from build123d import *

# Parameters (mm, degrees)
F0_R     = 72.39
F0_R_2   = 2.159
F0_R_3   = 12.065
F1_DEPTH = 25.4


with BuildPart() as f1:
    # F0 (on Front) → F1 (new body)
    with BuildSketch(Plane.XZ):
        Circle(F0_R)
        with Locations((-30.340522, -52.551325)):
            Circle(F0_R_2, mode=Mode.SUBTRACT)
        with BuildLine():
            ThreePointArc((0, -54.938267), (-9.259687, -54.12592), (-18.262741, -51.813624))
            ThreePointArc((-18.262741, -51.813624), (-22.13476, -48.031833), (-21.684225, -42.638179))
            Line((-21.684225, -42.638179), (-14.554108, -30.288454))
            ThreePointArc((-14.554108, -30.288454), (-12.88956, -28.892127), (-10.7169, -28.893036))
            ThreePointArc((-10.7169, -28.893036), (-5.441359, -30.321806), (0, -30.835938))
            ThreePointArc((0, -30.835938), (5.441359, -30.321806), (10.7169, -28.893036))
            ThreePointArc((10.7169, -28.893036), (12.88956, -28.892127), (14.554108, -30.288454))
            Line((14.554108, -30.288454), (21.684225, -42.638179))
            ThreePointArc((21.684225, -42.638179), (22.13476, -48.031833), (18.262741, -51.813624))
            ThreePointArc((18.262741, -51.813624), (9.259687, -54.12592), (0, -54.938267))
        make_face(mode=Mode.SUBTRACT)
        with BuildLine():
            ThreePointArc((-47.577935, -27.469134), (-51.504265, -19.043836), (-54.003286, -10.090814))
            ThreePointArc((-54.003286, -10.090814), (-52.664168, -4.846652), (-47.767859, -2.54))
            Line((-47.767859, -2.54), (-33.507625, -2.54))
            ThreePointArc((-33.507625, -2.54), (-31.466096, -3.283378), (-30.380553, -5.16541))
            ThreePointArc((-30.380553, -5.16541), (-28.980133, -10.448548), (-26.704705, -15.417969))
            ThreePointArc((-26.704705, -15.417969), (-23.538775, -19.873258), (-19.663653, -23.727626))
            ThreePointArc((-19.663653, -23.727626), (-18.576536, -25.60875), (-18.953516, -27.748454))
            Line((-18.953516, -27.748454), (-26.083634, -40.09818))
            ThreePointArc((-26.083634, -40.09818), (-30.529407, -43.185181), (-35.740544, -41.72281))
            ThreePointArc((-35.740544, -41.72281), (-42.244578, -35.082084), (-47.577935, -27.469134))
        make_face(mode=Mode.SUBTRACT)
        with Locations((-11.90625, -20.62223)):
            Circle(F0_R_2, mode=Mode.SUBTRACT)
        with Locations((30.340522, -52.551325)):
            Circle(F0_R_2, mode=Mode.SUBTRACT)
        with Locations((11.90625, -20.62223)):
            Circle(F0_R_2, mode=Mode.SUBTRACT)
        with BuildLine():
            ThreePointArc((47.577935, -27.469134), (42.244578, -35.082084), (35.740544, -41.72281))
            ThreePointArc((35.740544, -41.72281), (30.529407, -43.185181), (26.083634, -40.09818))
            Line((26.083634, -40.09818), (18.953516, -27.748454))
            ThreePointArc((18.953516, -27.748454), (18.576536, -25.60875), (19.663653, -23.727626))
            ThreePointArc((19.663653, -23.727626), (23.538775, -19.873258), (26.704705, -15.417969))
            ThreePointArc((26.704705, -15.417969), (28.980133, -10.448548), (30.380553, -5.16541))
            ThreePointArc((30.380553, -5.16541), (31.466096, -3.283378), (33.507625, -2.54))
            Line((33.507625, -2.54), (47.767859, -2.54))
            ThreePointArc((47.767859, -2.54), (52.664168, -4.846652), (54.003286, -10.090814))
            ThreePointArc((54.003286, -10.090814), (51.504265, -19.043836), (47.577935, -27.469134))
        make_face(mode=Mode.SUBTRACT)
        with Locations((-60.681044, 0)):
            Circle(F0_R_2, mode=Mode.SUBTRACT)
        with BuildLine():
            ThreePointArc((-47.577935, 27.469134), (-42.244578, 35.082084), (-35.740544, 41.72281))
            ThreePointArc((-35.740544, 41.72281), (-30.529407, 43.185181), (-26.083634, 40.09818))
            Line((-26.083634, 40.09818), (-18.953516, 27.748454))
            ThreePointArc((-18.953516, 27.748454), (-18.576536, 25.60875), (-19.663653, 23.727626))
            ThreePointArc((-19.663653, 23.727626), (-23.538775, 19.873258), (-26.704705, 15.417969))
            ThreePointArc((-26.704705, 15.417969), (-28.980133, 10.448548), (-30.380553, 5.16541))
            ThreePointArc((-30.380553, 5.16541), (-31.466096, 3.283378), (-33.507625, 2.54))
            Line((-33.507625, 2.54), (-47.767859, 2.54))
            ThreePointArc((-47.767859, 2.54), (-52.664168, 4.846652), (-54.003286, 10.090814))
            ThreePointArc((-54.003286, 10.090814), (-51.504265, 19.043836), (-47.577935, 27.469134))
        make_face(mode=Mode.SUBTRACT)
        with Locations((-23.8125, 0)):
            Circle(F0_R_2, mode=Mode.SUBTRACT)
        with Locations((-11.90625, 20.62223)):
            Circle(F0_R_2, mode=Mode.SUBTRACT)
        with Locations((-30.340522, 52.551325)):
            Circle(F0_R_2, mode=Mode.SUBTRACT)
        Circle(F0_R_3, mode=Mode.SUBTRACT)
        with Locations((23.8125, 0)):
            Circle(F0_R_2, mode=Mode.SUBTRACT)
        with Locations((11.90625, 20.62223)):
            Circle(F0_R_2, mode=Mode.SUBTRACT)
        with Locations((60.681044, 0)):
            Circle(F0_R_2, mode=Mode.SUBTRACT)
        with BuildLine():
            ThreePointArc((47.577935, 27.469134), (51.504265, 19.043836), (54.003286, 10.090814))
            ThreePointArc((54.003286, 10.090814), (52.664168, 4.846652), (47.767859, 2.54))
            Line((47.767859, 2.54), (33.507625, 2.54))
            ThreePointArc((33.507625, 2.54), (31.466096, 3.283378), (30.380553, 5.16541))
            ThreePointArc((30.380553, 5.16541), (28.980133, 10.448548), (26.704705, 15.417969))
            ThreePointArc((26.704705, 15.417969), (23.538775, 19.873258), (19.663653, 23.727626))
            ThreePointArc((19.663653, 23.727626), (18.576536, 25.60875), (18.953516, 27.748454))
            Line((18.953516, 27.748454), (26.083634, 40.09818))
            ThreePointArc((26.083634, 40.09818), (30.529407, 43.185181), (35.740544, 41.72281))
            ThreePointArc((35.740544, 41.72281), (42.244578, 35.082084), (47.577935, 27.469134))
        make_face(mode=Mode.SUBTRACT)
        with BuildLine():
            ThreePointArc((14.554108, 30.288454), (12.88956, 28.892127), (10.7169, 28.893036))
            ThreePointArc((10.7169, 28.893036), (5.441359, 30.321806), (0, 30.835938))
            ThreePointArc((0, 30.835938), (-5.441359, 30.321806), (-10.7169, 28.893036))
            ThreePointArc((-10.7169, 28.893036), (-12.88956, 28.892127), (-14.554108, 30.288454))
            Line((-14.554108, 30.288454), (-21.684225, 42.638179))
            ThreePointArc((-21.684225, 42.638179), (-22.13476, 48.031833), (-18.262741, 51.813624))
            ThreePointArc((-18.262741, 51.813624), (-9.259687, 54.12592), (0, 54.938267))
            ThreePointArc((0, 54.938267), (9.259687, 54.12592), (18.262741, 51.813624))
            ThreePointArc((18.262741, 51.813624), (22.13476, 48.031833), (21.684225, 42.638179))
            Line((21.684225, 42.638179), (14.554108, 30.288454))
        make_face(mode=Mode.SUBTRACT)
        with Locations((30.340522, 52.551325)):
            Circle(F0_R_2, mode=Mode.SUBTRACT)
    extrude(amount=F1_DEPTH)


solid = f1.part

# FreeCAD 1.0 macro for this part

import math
import FreeCAD as App
import Part
import Sketcher
Q = App.Units.Quantity

doc = App.newDocument("Part")
params = doc.addObject("Spreadsheet::Sheet", "Params")
for row, (alias, value) in enumerate([
    ("sketch1_diameter", "5.7 in"),
    ("sketch1_diameter2", "0.17 in"),
    ("sketch1_diameter3", "0.95 in"),
    ("sketch1_radius", "0.25 in"),
    ("sketch1_radius2", "0.1249999 in"),
    ("pad1_length", "1 in"),
], start=1):
    params.set(f"A{row}", alias)
    params.set(f"B{row}", "=" + value)
    params.setAlias(f"B{row}", alias)

body = doc.addObject("PartDesign::Body", "Body")

sketch1 = doc.addObject("Sketcher::SketchObject", "Sketch")
body.addObject(sketch1)
sketch1.AttachmentSupport = (doc.XZ_Plane, [""])
sketch1.MapMode = "FlatFace"
sketch1.addGeometry([
    Part.Circle(App.Vector(0, 0, 0), App.Vector(0, 0, 1), 72.39),
    Part.Circle(App.Vector(-30.340522, -52.551325, 0), App.Vector(0, 0, 1), 2.159),
    Part.ArcOfCircle(Part.Circle(App.Vector(-0.315552, 1.838903, 0), App.Vector(0, 0, 1), 56.778047), math.radians(-89.681569), math.radians(-70.900535)),
    Part.ArcOfCircle(Part.Circle(App.Vector(0.315552, 1.838903, 0), App.Vector(0, 0, 1), 56.778047), math.radians(-109.099465), math.radians(-90.318431)),
    Part.ArcOfCircle(Part.Circle(App.Vector(-16.184964, -45.813179, 0), App.Vector(0, 0, 1), 6.35), math.radians(149.999997), math.radians(250.900542)),
    Part.LineSegment(App.Vector(-21.684225, -42.638179, 0), App.Vector(-14.554108, -30.288454, 0)),
    Part.ArcOfCircle(Part.Circle(App.Vector(-11.804478, -31.875952, 0), App.Vector(0, 0, 1), 3.174998), math.radians(69.968025), math.radians(150.000025)),
    Part.ArcOfCircle(Part.Circle(App.Vector(0.291387, 1.299585, 0), App.Vector(0, 0, 1), 32.136844), math.radians(-110.031952), math.radians(-90.519512)),
    Part.ArcOfCircle(Part.Circle(App.Vector(-0.291387, 1.299585, 0), App.Vector(0, 0, 1), 32.136844), math.radians(-89.480488), math.radians(-69.968048)),
    Part.ArcOfCircle(Part.Circle(App.Vector(11.804478, -31.875952, 0), App.Vector(0, 0, 1), 3.174998), math.radians(29.999975), math.radians(110.031975)),
    Part.LineSegment(App.Vector(14.554108, -30.288454, 0), App.Vector(21.684225, -42.638179, 0)),
    Part.ArcOfCircle(Part.Circle(App.Vector(16.184964, -45.813179, 0), App.Vector(0, 0, 1), 6.35), math.radians(-70.900542), math.radians(30.000003)),
    Part.ArcOfCircle(Part.Circle(App.Vector(1.434792, 1.192754, 0), App.Vector(0, 0, 1), 56.778088), math.radians(-149.681562), math.radians(-130.900541)),
    Part.ArcOfCircle(Part.Circle(App.Vector(1.750362, 0.646196, 0), App.Vector(0, 0, 1), 56.7781), math.radians(-169.099456), math.radians(-150.318438)),
    Part.ArcOfCircle(Part.Circle(App.Vector(-47.76786, -8.89, 0), App.Vector(0, 0, 1), 6.35), math.radians(89.999995), math.radians(190.900535)),
    Part.LineSegment(App.Vector(-47.767859, -2.54, 0), App.Vector(-33.507625, -2.54, 0)),
    Part.ArcOfCircle(Part.Circle(App.Vector(-33.507625, -5.715001, 0), App.Vector(0, 0, 1), 3.175001), math.radians(9.968071), math.radians(90.000002)),
    Part.ArcOfCircle(Part.Circle(App.Vector(1.271186, 0.397452, 0), App.Vector(0, 0, 1), 32.136864), math.radians(-170.031944), math.radians(-150.519516)),
    Part.ArcOfCircle(Part.Circle(App.Vector(0.979766, 0.902126, 0), App.Vector(0, 0, 1), 32.136824), math.radians(-149.480497), math.radians(-129.968045)),
    Part.ArcOfCircle(Part.Circle(App.Vector(-21.703146, -26.160955, 0), App.Vector(0, 0, 1), 3.174999), math.radians(-30), math.radians(50.031965)),
    Part.LineSegment(App.Vector(-18.953516, -27.748454, 0), App.Vector(-26.083634, -40.09818, 0)),
    Part.ArcOfCircle(Part.Circle(App.Vector(-31.582895, -36.92318, 0), App.Vector(0, 0, 1), 6.35), math.radians(-130.900538), math.radians(-30.000005)),
    Part.Circle(App.Vector(-60.681044, 0, 0), App.Vector(0, 0, 1), 2.159),
    Part.Circle(App.Vector(-11.90625, -20.62223, 0), App.Vector(0, 0, 1), 2.159),
    Part.Circle(App.Vector(-23.8125, 0, 0), App.Vector(0, 0, 1), 2.159),
    Part.Circle(App.Vector(30.340522, -52.551325, 0), App.Vector(0, 0, 1), 2.159),
    Part.Circle(App.Vector(11.90625, -20.62223, 0), App.Vector(0, 0, 1), 2.159),
    Part.Circle(App.Vector(0, 0, 0), App.Vector(0, 0, 1), 12.065),
    Part.Circle(App.Vector(23.8125, 0, 0), App.Vector(0, 0, 1), 2.159),
    Part.ArcOfCircle(Part.Circle(App.Vector(-1.750362, 0.646196, 0), App.Vector(0, 0, 1), 56.7781), math.radians(-29.681562), math.radians(-10.900544)),
    Part.ArcOfCircle(Part.Circle(App.Vector(-1.434792, 1.192754, 0), App.Vector(0, 0, 1), 56.778088), math.radians(-49.099459), math.radians(-30.318438)),
    Part.ArcOfCircle(Part.Circle(App.Vector(31.582895, -36.92318, 0), App.Vector(0, 0, 1), 6.35), math.radians(-149.999995), math.radians(-49.099462)),
    Part.LineSegment(App.Vector(26.083634, -40.09818, 0), App.Vector(18.953516, -27.748454, 0)),
    Part.ArcOfCircle(Part.Circle(App.Vector(21.703146, -26.160955, 0), App.Vector(0, 0, 1), 3.174999), math.radians(129.968035), math.radians(210)),
    Part.ArcOfCircle(Part.Circle(App.Vector(-0.979766, 0.902126, 0), App.Vector(0, 0, 1), 32.136824), math.radians(-50.031955), math.radians(-30.519503)),
    Part.ArcOfCircle(Part.Circle(App.Vector(-1.271186, 0.397452, 0), App.Vector(0, 0, 1), 32.136864), math.radians(-29.480484), math.radians(-9.968056)),
    Part.ArcOfCircle(Part.Circle(App.Vector(33.507625, -5.715001, 0), App.Vector(0, 0, 1), 3.175001), math.radians(89.999998), math.radians(170.031929)),
    Part.LineSegment(App.Vector(33.507625, -2.54, 0), App.Vector(47.767859, -2.54, 0)),
    Part.ArcOfCircle(Part.Circle(App.Vector(47.76786, -8.89, 0), App.Vector(0, 0, 1), 6.35), math.radians(-10.900535), math.radians(90.000005)),
    Part.Circle(App.Vector(60.681044, 0, 0), App.Vector(0, 0, 1), 2.159),
    Part.ArcOfCircle(Part.Circle(App.Vector(1.750362, -0.646196, 0), App.Vector(0, 0, 1), 56.7781), math.radians(150.318438), math.radians(169.099456)),
    Part.ArcOfCircle(Part.Circle(App.Vector(1.434792, -1.192754, 0), App.Vector(0, 0, 1), 56.778088), math.radians(130.900541), math.radians(149.681562)),
    Part.ArcOfCircle(Part.Circle(App.Vector(-31.582895, 36.92318, 0), App.Vector(0, 0, 1), 6.35), math.radians(30.000005), math.radians(130.900538)),
    Part.LineSegment(App.Vector(-26.083634, 40.09818, 0), App.Vector(-18.953516, 27.748454, 0)),
    Part.ArcOfCircle(Part.Circle(App.Vector(-21.703146, 26.160955, 0), App.Vector(0, 0, 1), 3.174999), math.radians(-50.031965), math.radians(30)),
    Part.ArcOfCircle(Part.Circle(App.Vector(0.979766, -0.902126, 0), App.Vector(0, 0, 1), 32.136824), math.radians(129.968045), math.radians(149.480497)),
    Part.ArcOfCircle(Part.Circle(App.Vector(1.271186, -0.397452, 0), App.Vector(0, 0, 1), 32.136864), math.radians(150.519516), math.radians(170.031944)),
    Part.ArcOfCircle(Part.Circle(App.Vector(-33.507625, 5.715001, 0), App.Vector(0, 0, 1), 3.175001), math.radians(-90.000002), math.radians(-9.968071)),
    Part.LineSegment(App.Vector(-33.507625, 2.54, 0), App.Vector(-47.767859, 2.54, 0)),
    Part.ArcOfCircle(Part.Circle(App.Vector(-47.76786, 8.89, 0), App.Vector(0, 0, 1), 6.35), math.radians(169.099465), math.radians(270.000005)),
    Part.Circle(App.Vector(-11.90625, 20.62223, 0), App.Vector(0, 0, 1), 2.159),
    Part.Circle(App.Vector(-30.340522, 52.551325, 0), App.Vector(0, 0, 1), 2.159),
    Part.LineSegment(App.Vector(21.684225, 42.638179, 0), App.Vector(14.554108, 30.288454, 0)),
    Part.ArcOfCircle(Part.Circle(App.Vector(11.804478, 31.875952, 0), App.Vector(0, 0, 1), 3.174998), math.radians(-110.031975), math.radians(-29.999975)),
    Part.ArcOfCircle(Part.Circle(App.Vector(-0.291387, -1.299585, 0), App.Vector(0, 0, 1), 32.136844), math.radians(69.968048), math.radians(89.480488)),
    Part.ArcOfCircle(Part.Circle(App.Vector(0.291387, -1.299585, 0), App.Vector(0, 0, 1), 32.136844), math.radians(90.519512), math.radians(110.031952)),
    Part.ArcOfCircle(Part.Circle(App.Vector(-11.804478, 31.875952, 0), App.Vector(0, 0, 1), 3.174998), math.radians(-150.000025), math.radians(-69.968025)),
    Part.LineSegment(App.Vector(-14.554108, 30.288454, 0), App.Vector(-21.684225, 42.638179, 0)),
    Part.ArcOfCircle(Part.Circle(App.Vector(-16.184964, 45.813179, 0), App.Vector(0, 0, 1), 6.35), math.radians(109.099458), math.radians(210.000003)),
    Part.ArcOfCircle(Part.Circle(App.Vector(0.315552, -1.838903, 0), App.Vector(0, 0, 1), 56.778047), math.radians(90.318431), math.radians(109.099465)),
    Part.ArcOfCircle(Part.Circle(App.Vector(-0.315552, -1.838903, 0), App.Vector(0, 0, 1), 56.778047), math.radians(70.900535), math.radians(89.681569)),
    Part.ArcOfCircle(Part.Circle(App.Vector(16.184964, 45.813179, 0), App.Vector(0, 0, 1), 6.35), math.radians(-30.000003), math.radians(70.900542)),
    Part.Circle(App.Vector(11.90625, 20.62223, 0), App.Vector(0, 0, 1), 2.159),
    Part.ArcOfCircle(Part.Circle(App.Vector(-1.434792, -1.192754, 0), App.Vector(0, 0, 1), 56.778088), math.radians(30.318438), math.radians(49.099459)),
    Part.ArcOfCircle(Part.Circle(App.Vector(-1.750362, -0.646196, 0), App.Vector(0, 0, 1), 56.7781), math.radians(10.900544), math.radians(29.681562)),
    Part.ArcOfCircle(Part.Circle(App.Vector(47.76786, 8.89, 0), App.Vector(0, 0, 1), 6.35), math.radians(-90.000005), math.radians(10.900535)),
    Part.LineSegment(App.Vector(47.767859, 2.54, 0), App.Vector(33.507625, 2.54, 0)),
    Part.ArcOfCircle(Part.Circle(App.Vector(33.507625, 5.715001, 0), App.Vector(0, 0, 1), 3.175001), math.radians(-170.031929), math.radians(-89.999998)),
    Part.ArcOfCircle(Part.Circle(App.Vector(-1.271186, -0.397452, 0), App.Vector(0, 0, 1), 32.136864), math.radians(9.968056), math.radians(29.480484)),
    Part.ArcOfCircle(Part.Circle(App.Vector(-0.979766, -0.902126, 0), App.Vector(0, 0, 1), 32.136824), math.radians(30.519503), math.radians(50.031955)),
    Part.ArcOfCircle(Part.Circle(App.Vector(21.703146, 26.160955, 0), App.Vector(0, 0, 1), 3.174999), math.radians(150), math.radians(230.031965)),
    Part.LineSegment(App.Vector(18.953516, 27.748454, 0), App.Vector(26.083634, 40.09818, 0)),
    Part.ArcOfCircle(Part.Circle(App.Vector(31.582895, 36.92318, 0), App.Vector(0, 0, 1), 6.35), math.radians(49.099462), math.radians(149.999995)),
    Part.Circle(App.Vector(30.340522, 52.551325, 0), App.Vector(0, 0, 1), 2.159),
], False)
sketch1.addConstraint([
    Sketcher.Constraint("Coincident", 2, 1, 3, 2),
    Sketcher.Constraint("Tangent", 3, 1, 4, 2),
    Sketcher.Constraint("Tangent", 4, 1, 5, 1),
    Sketcher.Constraint("Tangent", 5, 2, 6, 2),
    Sketcher.Constraint("Tangent", 6, 1, 7, 1),
    Sketcher.Constraint("Coincident", 7, 2, 8, 1),
    Sketcher.Constraint("Tangent", 8, 2, 9, 2),
    Sketcher.Constraint("Tangent", 9, 1, 10, 1),
    Sketcher.Constraint("Tangent", 10, 2, 11, 2),
    Sketcher.Constraint("Tangent", 11, 1, 2, 2),
    Sketcher.Constraint("Coincident", 12, 1, 13, 2),
    Sketcher.Constraint("Tangent", 13, 1, 14, 2),
    Sketcher.Constraint("Tangent", 14, 1, 15, 1),
    Sketcher.Constraint("Tangent", 15, 2, 16, 2),
    Sketcher.Constraint("Tangent", 16, 1, 17, 1),
    Sketcher.Constraint("Coincident", 17, 2, 18, 1),
    Sketcher.Constraint("Tangent", 18, 2, 19, 2),
    Sketcher.Constraint("Tangent", 19, 1, 20, 1),
    Sketcher.Constraint("Tangent", 20, 2, 21, 2),
    Sketcher.Constraint("Tangent", 21, 1, 12, 2),
    Sketcher.Constraint("Coincident", 29, 1, 30, 2),
    Sketcher.Constraint("Tangent", 30, 1, 31, 2),
    Sketcher.Constraint("Tangent", 31, 1, 32, 1),
    Sketcher.Constraint("Tangent", 32, 2, 33, 2),
    Sketcher.Constraint("Tangent", 33, 1, 34, 1),
    Sketcher.Constraint("Coincident", 34, 2, 35, 1),
    Sketcher.Constraint("Tangent", 35, 2, 36, 2),
    Sketcher.Constraint("Tangent", 36, 1, 37, 1),
    Sketcher.Constraint("Tangent", 37, 2, 38, 2),
    Sketcher.Constraint("Tangent", 38, 1, 29, 2),
    Sketcher.Constraint("Coincident", 40, 1, 41, 2),
    Sketcher.Constraint("Tangent", 41, 1, 42, 2),
    Sketcher.Constraint("Tangent", 42, 1, 43, 1),
    Sketcher.Constraint("Tangent", 43, 2, 44, 2),
    Sketcher.Constraint("Tangent", 44, 1, 45, 1),
    Sketcher.Constraint("Coincident", 45, 2, 46, 1),
    Sketcher.Constraint("Tangent", 46, 2, 47, 2),
    Sketcher.Constraint("Tangent", 47, 1, 48, 1),
    Sketcher.Constraint("Tangent", 48, 2, 49, 2),
    Sketcher.Constraint("Tangent", 49, 1, 40, 2),
    Sketcher.Constraint("Tangent", 52, 2, 53, 2),
    Sketcher.Constraint("Tangent", 53, 1, 54, 1),
    Sketcher.Constraint("Coincident", 54, 2, 55, 1),
    Sketcher.Constraint("Tangent", 55, 2, 56, 2),
    Sketcher.Constraint("Tangent", 56, 1, 57, 1),
    Sketcher.Constraint("Tangent", 57, 2, 58, 2),
    Sketcher.Constraint("Tangent", 58, 1, 59, 2),
    Sketcher.Constraint("Coincident", 59, 1, 60, 2),
    Sketcher.Constraint("Tangent", 60, 1, 61, 2),
    Sketcher.Constraint("Tangent", 61, 1, 52, 1),
    Sketcher.Constraint("Coincident", 63, 1, 64, 2),
    Sketcher.Constraint("Tangent", 64, 1, 65, 2),
    Sketcher.Constraint("Tangent", 65, 1, 66, 1),
    Sketcher.Constraint("Tangent", 66, 2, 67, 2),
    Sketcher.Constraint("Tangent", 67, 1, 68, 1),
    Sketcher.Constraint("Coincident", 68, 2, 69, 1),
    Sketcher.Constraint("Tangent", 69, 2, 70, 2),
    Sketcher.Constraint("Tangent", 70, 1, 71, 1),
    Sketcher.Constraint("Tangent", 71, 2, 72, 2),
    Sketcher.Constraint("Tangent", 72, 1, 63, 2),
    Sketcher.Constraint("Horizontal", 15),
    Sketcher.Constraint("Horizontal", 37),
    Sketcher.Constraint("Horizontal", 48),
    Sketcher.Constraint("Horizontal", 66),
    Sketcher.Constraint("Coincident", 0, 3, -1, 1),
    Sketcher.Constraint("Coincident", 27, 3, -1, 1),
    Sketcher.Constraint("Equal", 2, 3),
    Sketcher.Constraint("Equal", 7, 8),
    Sketcher.Constraint("Equal", 6, 9),
    Sketcher.Constraint("Equal", 4, 11),
    Sketcher.Constraint("Equal", 11, 14),
    Sketcher.Constraint("Equal", 16, 19),
    Sketcher.Constraint("Equal", 14, 21),
    Sketcher.Constraint("Equal", 1, 22),
    Sketcher.Constraint("Equal", 22, 23),
    Sketcher.Constraint("Equal", 23, 24),
    Sketcher.Constraint("Equal", 24, 25),
    Sketcher.Constraint("Equal", 25, 26),
    Sketcher.Constraint("Equal", 26, 28),
    Sketcher.Constraint("Equal", 13, 29),
    Sketcher.Constraint("Equal", 12, 30),
    Sketcher.Constraint("Equal", 21, 31),
    Sketcher.Constraint("Equal", 19, 33),
    Sketcher.Constraint("Equal", 18, 34),
    Sketcher.Constraint("Equal", 17, 35),
    Sketcher.Constraint("Equal", 33, 36),
    Sketcher.Constraint("Equal", 31, 38),
    Sketcher.Constraint("Equal", 28, 39),
    Sketcher.Constraint("Equal", 29, 40),
    Sketcher.Constraint("Equal", 30, 41),
    Sketcher.Constraint("Equal", 38, 42),
    Sketcher.Constraint("Equal", 36, 44),
    Sketcher.Constraint("Equal", 34, 45),
    Sketcher.Constraint("Equal", 35, 46),
    Sketcher.Constraint("Equal", 44, 47),
    Sketcher.Constraint("Equal", 42, 49),
    Sketcher.Constraint("Equal", 39, 50),
    Sketcher.Constraint("Equal", 50, 51),
    Sketcher.Constraint("Equal", 44, 53),
    Sketcher.Constraint("Equal", 8, 54),
    Sketcher.Constraint("Equal", 54, 55),
    Sketcher.Constraint("Equal", 53, 56),
    Sketcher.Constraint("Equal", 49, 58),
    Sketcher.Constraint("Equal", 3, 59),
    Sketcher.Constraint("Equal", 59, 60),
    Sketcher.Constraint("Equal", 58, 61),
    Sketcher.Constraint("Equal", 51, 62),
    Sketcher.Constraint("Equal", 41, 63),
    Sketcher.Constraint("Equal", 40, 64),
    Sketcher.Constraint("Equal", 61, 65),
    Sketcher.Constraint("Equal", 47, 67),
    Sketcher.Constraint("Equal", 46, 68),
    Sketcher.Constraint("Equal", 45, 69),
    Sketcher.Constraint("Equal", 67, 70),
    Sketcher.Constraint("Equal", 65, 72),
    Sketcher.Constraint("Equal", 62, 73),
    Sketcher.Constraint("Symmetric", 24, 3, 28, 3, -1, 1),
    Sketcher.Constraint("Symmetric", 22, 3, 39, 3, -1, 1),
    Sketcher.Constraint("Symmetric", 29, 3, 40, 3, -1, 1),
    Sketcher.Constraint("Symmetric", 30, 3, 41, 3, -1, 1),
    Sketcher.Constraint("Symmetric", 33, 3, 44, 3, -1, 1),
    Sketcher.Constraint("Symmetric", 35, 3, 46, 3, -1, 1),
    Sketcher.Constraint("Symmetric", 26, 3, 50, 3, -1, 1),
    Sketcher.Constraint("Symmetric", 25, 3, 51, 3, -1, 1),
    Sketcher.Constraint("Symmetric", 6, 3, 53, 3, -1, 1),
    Sketcher.Constraint("Symmetric", 7, 3, 54, 3, -1, 1),
    Sketcher.Constraint("Symmetric", 8, 3, 55, 3, -1, 1),
    Sketcher.Constraint("Symmetric", 11, 3, 58, 3, -1, 1),
    Sketcher.Constraint("Symmetric", 3, 3, 60, 3, -1, 1),
    Sketcher.Constraint("Symmetric", 23, 3, 62, 3, -1, 1),
    Sketcher.Constraint("Symmetric", 12, 3, 63, 3, -1, 1),
    Sketcher.Constraint("Symmetric", 13, 3, 64, 3, -1, 1),
    Sketcher.Constraint("Symmetric", 16, 3, 67, 3, -1, 1),
    Sketcher.Constraint("Symmetric", 18, 3, 69, 3, -1, 1),
    Sketcher.Constraint("Symmetric", 1, 3, 73, 3, -1, 1),
    Sketcher.Constraint("Symmetric", 19, 1, 70, 1, -1, 1),
    Sketcher.Constraint("Symmetric", 2, 3, 3, 3, -2),
    Sketcher.Constraint("Symmetric", 7, 3, 8, 3, -2),
    Sketcher.Constraint("Symmetric", 1, 3, 25, 3, -2),
    Sketcher.Constraint("Symmetric", 23, 3, 26, 3, -2),
    Sketcher.Constraint("Symmetric", 13, 3, 29, 3, -2),
    Sketcher.Constraint("Symmetric", 12, 3, 30, 3, -2),
    Sketcher.Constraint("Symmetric", 19, 3, 33, 3, -2),
    Sketcher.Constraint("Symmetric", 17, 3, 35, 3, -2),
    Sketcher.Constraint("Symmetric", 5, 2, 9, 1, -2),
    Sketcher.Constraint("Symmetric", 52, 2, 56, 1, -2),
    Sketcher.Constraint("Symmetric", 45, 2, 68, 2, -2),
    Sketcher.Constraint("PointOnObject", 22, 3, -1),
    Sketcher.Constraint("PointOnObject", 24, 3, -1),
    Sketcher.Constraint("PointOnObject", 59, 1, -2),
    Sketcher.Constraint("Parallel", 5, 20),
    Sketcher.Constraint("Parallel", 10, 32),
    Sketcher.Constraint("Parallel", 32, 43),
    Sketcher.Constraint("Horizontal", 18, 3, 34, 3),
    Sketcher.Constraint("Horizontal", 16, 3, 36, 3),
    Sketcher.Constraint("Horizontal", 49, 3, 65, 3),
    Sketcher.Constraint("Equal", 10, 20),
    Sketcher.Constraint("Diameter", 0, Q("5.7 in")),
    Sketcher.Constraint("Diameter", 1, Q("0.17 in")),
    Sketcher.Constraint("Diameter", 27, Q("0.95 in")),
    Sketcher.Constraint("Radius", 4, Q("0.25 in")),
    Sketcher.Constraint("Angle", 5, Q("60 deg")),
    Sketcher.Constraint("Radius", 6, Q("0.1249999 in")),
    Sketcher.Constraint("DistanceY", 14, 1, -1, 1, Q("0.1 in")),
    Sketcher.Constraint("Radius", 13, Q("56.7781 mm")),
    Sketcher.Constraint("DistanceX", 23, 3, -1, 1, Q("0.46875 in")),
    Sketcher.Constraint("DistanceX", 24, 3, -1, 1, Q("0.9375 in")),
    Sketcher.Constraint("Radius", 2, Q("56.778047 mm")),
    Sketcher.Constraint("Radius", 7, Q("32.136844 mm")),
    Sketcher.Constraint("Radius", 12, Q("56.778088 mm")),
    Sketcher.Constraint("Radius", 17, Q("32.136864 mm")),
    Sketcher.Constraint("Radius", 18, Q("32.136824 mm")),
    Sketcher.Constraint("DistanceX", 6, 1, -1, 1, Q("10.7169 mm")),
    Sketcher.Constraint("DistanceX", 15, 1, 15, 2, Q("14.260234 mm")),
    Sketcher.Constraint("DistanceX", 1, 3, -1, 1, Q("30.340522 mm")),
    Sketcher.Constraint("DistanceX", 2, 3, -1, 1, Q("0.315552 mm")),
    Sketcher.Constraint("DistanceY", 4, 3, -1, 1, Q("45.813179 mm")),
    Sketcher.Constraint("DistanceX", 6, 3, -1, 1, Q("11.804478 mm")),
    Sketcher.Constraint("DistanceY", 6, 3, -1, 1, Q("31.875952 mm")),
    Sketcher.Constraint("DistanceX", 14, 3, -1, 1, Q("47.76786 mm")),
    Sketcher.Constraint("DistanceY", -1, 1, 17, 3, Q("0.397452 mm")),
    Sketcher.Constraint("DistanceY", 21, 3, -1, 1, Q("36.92318 mm")),
    Sketcher.Constraint("DistanceY", 23, 3, -1, 1, Q("20.62223 mm")),
    Sketcher.Constraint("DistanceY", 17, 2, -1, 1, Q("15.417969 mm")),
    Sketcher.Constraint("DistanceY", 21, 1, -1, 1, Q("41.72281 mm")),
    Sketcher.Constraint("DistanceY", 1, 3, -1, 1, Q("52.551325 mm")),
    Sketcher.Constraint("DistanceX", -1, 1, 12, 3, Q("1.434792 mm")),
    Sketcher.Constraint("DistanceX", -1, 1, 13, 3, Q("1.750362 mm")),
    Sketcher.Constraint("DistanceX", 22, 3, -1, 1, Q("60.681044 mm")),
])
sketch1.setExpression("Constraints[157]", "Params.sketch1_diameter")
sketch1.setExpression("Constraints[158]", "Params.sketch1_diameter2")
sketch1.setExpression("Constraints[159]", "Params.sketch1_diameter3")
sketch1.setExpression("Constraints[160]", "Params.sketch1_radius")
sketch1.setExpression("Constraints[162]", "Params.sketch1_radius2")
pad1 = doc.addObject("PartDesign::Pad", "Pad")
body.addObject(pad1)
pad1.Profile = sketch1
pad1.setExpression("Length", "Params.pad1_length")

doc.recompute()
